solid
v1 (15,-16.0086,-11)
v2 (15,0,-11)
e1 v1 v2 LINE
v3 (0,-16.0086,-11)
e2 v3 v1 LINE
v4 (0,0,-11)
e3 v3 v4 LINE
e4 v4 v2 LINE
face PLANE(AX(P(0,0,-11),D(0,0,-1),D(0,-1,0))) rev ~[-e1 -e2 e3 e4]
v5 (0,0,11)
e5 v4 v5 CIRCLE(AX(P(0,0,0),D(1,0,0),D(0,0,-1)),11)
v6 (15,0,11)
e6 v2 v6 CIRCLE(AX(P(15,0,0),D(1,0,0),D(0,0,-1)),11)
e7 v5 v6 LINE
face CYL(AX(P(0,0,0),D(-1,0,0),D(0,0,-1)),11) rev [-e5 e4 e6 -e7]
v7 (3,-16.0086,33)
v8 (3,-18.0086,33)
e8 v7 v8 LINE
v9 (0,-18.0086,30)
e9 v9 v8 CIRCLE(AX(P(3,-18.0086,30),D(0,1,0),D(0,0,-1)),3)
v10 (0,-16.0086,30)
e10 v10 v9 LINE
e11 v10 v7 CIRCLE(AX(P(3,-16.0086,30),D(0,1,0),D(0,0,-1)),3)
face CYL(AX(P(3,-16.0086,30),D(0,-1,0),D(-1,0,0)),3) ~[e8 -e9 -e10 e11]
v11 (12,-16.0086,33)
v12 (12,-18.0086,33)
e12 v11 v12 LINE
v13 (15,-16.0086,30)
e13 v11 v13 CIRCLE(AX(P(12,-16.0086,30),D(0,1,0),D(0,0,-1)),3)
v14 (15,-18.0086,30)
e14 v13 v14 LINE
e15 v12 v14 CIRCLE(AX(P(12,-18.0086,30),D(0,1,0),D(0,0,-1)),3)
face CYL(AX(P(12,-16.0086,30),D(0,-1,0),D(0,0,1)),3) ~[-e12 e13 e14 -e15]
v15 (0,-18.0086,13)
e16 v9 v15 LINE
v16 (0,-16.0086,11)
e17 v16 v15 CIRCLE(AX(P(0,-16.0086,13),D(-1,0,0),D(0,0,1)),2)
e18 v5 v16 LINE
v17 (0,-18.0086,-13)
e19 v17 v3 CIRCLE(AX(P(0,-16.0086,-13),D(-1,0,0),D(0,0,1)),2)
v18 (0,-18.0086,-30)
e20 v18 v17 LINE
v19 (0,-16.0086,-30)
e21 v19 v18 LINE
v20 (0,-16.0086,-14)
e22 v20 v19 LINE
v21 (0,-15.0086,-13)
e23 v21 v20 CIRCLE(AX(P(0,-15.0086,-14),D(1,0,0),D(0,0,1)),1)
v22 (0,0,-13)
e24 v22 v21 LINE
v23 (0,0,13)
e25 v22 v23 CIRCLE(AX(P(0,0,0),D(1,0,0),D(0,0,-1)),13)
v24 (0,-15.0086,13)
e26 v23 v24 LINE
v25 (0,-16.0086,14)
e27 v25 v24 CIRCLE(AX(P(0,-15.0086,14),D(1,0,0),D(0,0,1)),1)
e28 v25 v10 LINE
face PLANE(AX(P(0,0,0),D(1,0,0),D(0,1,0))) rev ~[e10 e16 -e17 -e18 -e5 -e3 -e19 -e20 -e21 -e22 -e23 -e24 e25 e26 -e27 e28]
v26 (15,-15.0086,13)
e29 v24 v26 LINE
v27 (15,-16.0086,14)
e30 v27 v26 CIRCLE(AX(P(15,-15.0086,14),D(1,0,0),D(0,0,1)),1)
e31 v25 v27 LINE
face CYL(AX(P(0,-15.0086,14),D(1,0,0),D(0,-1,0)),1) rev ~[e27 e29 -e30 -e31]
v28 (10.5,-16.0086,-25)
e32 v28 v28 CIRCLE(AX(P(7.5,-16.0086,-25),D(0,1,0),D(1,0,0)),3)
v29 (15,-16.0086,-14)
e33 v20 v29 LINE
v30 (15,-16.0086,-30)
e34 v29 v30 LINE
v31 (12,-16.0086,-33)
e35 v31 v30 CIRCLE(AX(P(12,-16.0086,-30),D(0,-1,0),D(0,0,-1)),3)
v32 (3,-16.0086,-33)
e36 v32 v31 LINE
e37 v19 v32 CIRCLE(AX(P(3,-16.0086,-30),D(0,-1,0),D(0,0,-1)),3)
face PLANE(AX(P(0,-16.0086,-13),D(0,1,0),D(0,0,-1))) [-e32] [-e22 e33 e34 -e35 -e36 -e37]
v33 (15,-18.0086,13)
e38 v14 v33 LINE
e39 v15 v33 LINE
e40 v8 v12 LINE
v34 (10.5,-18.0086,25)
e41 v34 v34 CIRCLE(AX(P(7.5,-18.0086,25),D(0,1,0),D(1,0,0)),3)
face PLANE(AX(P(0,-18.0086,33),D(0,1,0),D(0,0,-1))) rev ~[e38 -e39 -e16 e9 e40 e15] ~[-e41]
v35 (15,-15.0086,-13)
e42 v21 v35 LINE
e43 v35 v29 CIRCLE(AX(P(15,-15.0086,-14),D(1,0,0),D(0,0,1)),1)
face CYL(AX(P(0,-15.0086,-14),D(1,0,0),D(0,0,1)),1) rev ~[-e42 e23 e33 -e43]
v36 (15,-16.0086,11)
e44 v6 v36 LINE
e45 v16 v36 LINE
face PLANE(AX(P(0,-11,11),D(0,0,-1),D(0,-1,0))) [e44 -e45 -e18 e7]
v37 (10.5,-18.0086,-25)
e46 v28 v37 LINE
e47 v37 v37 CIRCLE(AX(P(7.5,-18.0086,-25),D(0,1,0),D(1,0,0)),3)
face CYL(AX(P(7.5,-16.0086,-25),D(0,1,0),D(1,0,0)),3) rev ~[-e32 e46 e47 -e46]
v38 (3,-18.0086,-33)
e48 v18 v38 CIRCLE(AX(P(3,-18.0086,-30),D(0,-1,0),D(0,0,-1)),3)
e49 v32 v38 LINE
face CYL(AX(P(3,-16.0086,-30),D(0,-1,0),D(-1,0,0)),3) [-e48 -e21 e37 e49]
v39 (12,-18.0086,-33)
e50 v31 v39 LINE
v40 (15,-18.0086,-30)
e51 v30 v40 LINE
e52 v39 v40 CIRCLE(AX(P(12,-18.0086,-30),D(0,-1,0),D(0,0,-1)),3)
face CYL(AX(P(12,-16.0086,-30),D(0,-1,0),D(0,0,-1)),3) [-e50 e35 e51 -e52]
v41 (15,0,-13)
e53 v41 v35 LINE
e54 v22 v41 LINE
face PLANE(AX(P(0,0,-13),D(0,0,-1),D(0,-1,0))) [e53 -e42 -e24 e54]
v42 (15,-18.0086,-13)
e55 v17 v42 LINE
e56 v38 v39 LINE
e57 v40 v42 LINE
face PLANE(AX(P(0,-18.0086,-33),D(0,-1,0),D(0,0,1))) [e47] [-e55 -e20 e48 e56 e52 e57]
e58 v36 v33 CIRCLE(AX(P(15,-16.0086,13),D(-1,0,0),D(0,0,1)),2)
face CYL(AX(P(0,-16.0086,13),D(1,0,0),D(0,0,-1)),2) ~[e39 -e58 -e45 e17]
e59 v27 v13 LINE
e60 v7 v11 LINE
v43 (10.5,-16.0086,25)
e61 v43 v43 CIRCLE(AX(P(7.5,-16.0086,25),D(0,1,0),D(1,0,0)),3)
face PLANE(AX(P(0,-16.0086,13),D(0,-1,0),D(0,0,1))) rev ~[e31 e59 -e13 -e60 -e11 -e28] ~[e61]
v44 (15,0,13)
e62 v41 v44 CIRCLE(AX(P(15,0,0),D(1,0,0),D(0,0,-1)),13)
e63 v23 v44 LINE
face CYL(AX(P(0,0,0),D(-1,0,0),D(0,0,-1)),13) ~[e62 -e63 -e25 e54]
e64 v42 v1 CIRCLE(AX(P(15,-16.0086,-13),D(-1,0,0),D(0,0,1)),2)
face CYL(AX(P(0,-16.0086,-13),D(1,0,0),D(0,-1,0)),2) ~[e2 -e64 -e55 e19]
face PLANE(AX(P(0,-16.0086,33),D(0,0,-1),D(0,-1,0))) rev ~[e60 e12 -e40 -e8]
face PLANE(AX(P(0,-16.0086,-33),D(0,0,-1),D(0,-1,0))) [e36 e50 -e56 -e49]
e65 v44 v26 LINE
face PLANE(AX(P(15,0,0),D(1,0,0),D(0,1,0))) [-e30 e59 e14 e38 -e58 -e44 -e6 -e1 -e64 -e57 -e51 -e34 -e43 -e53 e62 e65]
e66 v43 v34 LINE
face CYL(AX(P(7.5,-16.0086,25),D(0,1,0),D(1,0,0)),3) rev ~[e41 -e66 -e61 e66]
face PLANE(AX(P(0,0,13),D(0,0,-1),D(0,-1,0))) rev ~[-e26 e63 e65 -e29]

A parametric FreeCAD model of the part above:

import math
import FreeCAD as App
import Part
import Sketcher


def edges_at(feature, points):
    """Names of the edges that pass closest to the given points."""
    edges = feature.Shape.Edges
    near = lambda p: min(range(len(edges)), key=lambda i: edges[i].distToShape(Part.Vertex(*p))[0])
    return sorted({f"Edge{near(p) + 1}" for p in points})

doc = App.newDocument("Part")
body = doc.addObject("PartDesign::Body", "Body")

# Sketch on YZ plane
sketch1 = body.newObject("Sketcher::SketchObject", "Sketch")
sketch1.AttachmentSupport = (doc.getObject("YZ_Plane"), [""])
sketch1.MapMode = "FlatFace"
sketch1.addGeometry(Part.ArcOfCircle(Part.Circle(App.Vector(0, 0, 0), App.Vector(0, 0, 1), 11), math.radians(-90), math.radians(90)), False)
sketch1.addGeometry(Part.LineSegment(App.Vector(0, -11, 0), App.Vector(-18, -11, 0)), False)
sketch1.addGeometry(Part.LineSegment(App.Vector(-18, -11, 0), App.Vector(-18, -33, 0)), False)
sketch1.addGeometry(Part.LineSegment(App.Vector(-18, -33, 0), App.Vector(-16, -33, 0)), False)
sketch1.addGeometry(Part.LineSegment(App.Vector(-16, -33, 0), App.Vector(-16, -13, 0)), False)
sketch1.addGeometry(Part.LineSegment(App.Vector(-16, -13, 0), App.Vector(0, -13, 0)), False)
sketch1.addGeometry(Part.ArcOfCircle(Part.Circle(App.Vector(0, 0, 0), App.Vector(0, 0, 1), 13), math.radians(-90), math.radians(90)), False)
sketch1.addGeometry(Part.LineSegment(App.Vector(0, 13, 0), App.Vector(-16, 13, 0)), False)
sketch1.addGeometry(Part.LineSegment(App.Vector(-16, 13, 0), App.Vector(-16, 33, 0)), False)
sketch1.addGeometry(Part.LineSegment(App.Vector(-16, 33, 0), App.Vector(-18, 33, 0)), False)
sketch1.addGeometry(Part.LineSegment(App.Vector(-18, 33, 0), App.Vector(-18, 11, 0)), False)
sketch1.addGeometry(Part.LineSegment(App.Vector(-18, 11, 0), App.Vector(0, 11, 0)), False)
sketch1.addConstraint(Sketcher.Constraint("Tangent", 0, 1, 1, 1))
sketch1.addConstraint(Sketcher.Constraint("Coincident", 1, 2, 2, 1))
sketch1.addConstraint(Sketcher.Constraint("Coincident", 2, 2, 3, 1))
sketch1.addConstraint(Sketcher.Constraint("Coincident", 3, 2, 4, 1))
sketch1.addConstraint(Sketcher.Constraint("Coincident", 4, 2, 5, 1))
sketch1.addConstraint(Sketcher.Constraint("Tangent", 5, 2, 6, 1))
sketch1.addConstraint(Sketcher.Constraint("Tangent", 6, 2, 7, 1))
sketch1.addConstraint(Sketcher.Constraint("Coincident", 7, 2, 8, 1))
sketch1.addConstraint(Sketcher.Constraint("Coincident", 8, 2, 9, 1))
sketch1.addConstraint(Sketcher.Constraint("Coincident", 9, 2, 10, 1))
sketch1.addConstraint(Sketcher.Constraint("Coincident", 10, 2, 11, 1))
sketch1.addConstraint(Sketcher.Constraint("Tangent", 11, 2, 0, 2))
sketch1.addConstraint(Sketcher.Constraint("Horizontal", 1))
sketch1.addConstraint(Sketcher.Constraint("Vertical", 2))
sketch1.addConstraint(Sketcher.Constraint("Horizontal", 3))
sketch1.addConstraint(Sketcher.Constraint("Vertical", 4))
sketch1.addConstraint(Sketcher.Constraint("Horizontal", 5))
sketch1.addConstraint(Sketcher.Constraint("Horizontal", 7))
sketch1.addConstraint(Sketcher.Constraint("Vertical", 8))
sketch1.addConstraint(Sketcher.Constraint("Horizontal", 9))
sketch1.addConstraint(Sketcher.Constraint("Vertical", 10))
sketch1.addConstraint(Sketcher.Constraint("Horizontal", 11))
sketch1.addConstraint(Sketcher.Constraint("Coincident", 0, 3, -1, 1))
sketch1.addConstraint(Sketcher.Constraint("Coincident", 6, 3, -1, 1))
sketch1.addConstraint(Sketcher.Constraint("Symmetric", 3, 2, 8, 2, -1))
sketch1.addConstraint(Sketcher.Constraint("Vertical", 2, 2, 9, 2))
sketch1.addConstraint(Sketcher.Constraint("Radius", 0, 11.0))
sketch1.addConstraint(Sketcher.Constraint("DistanceX", 3, 1, 3, 2, 2.0))
sketch1.addConstraint(Sketcher.Constraint("DistanceY", 2, 2, 2, 1, 22.0))
sketch1.addConstraint(Sketcher.Constraint("Radius", 6, 13.0))
sketch1.addConstraint(Sketcher.Constraint("DistanceX", 1, 2, 1, 1, 18.0086))
pad1 = body.newObject("PartDesign::Pad", "Pad")
pad1.Profile = sketch1
pad1.Length = 15
doc.recompute()

fillet = body.newObject("PartDesign::Fillet", "Fillet")
fillet.Base = (pad1, edges_at(pad1, [(7.5, -18.009, -11), (7.5, -18.009, 11)]))
fillet.Radius = 2
doc.recompute()

fillet2 = body.newObject("PartDesign::Fillet", "Fillet001")
fillet2.Base = (fillet, edges_at(fillet, [(7.5, -16.009, 13), (7.5, -16.009, -13)]))
fillet2.Radius = 1
doc.recompute()

fillet3 = body.newObject("PartDesign::Fillet", "Fillet002")
fillet3.Base = (fillet2, edges_at(fillet2, [
    (15, -17.009, 33),
    (0, -17.009, 33),
    (15, -17.009, -33),
    (0, -17.009, -33),
]))
fillet3.Radius = 3

# Sketch on XZ plane
sketch2 = body.newObject("Sketcher::SketchObject", "Sketch001")
sketch2.AttachmentSupport = (doc.getObject("XZ_Plane"), [""])
sketch2.MapMode = "FlatFace"
sketch2.AttachmentOffset = App.Placement(App.Vector(0, 0, 16.0086), App.Rotation())
sketch2.addGeometry(Part.Circle(App.Vector(7.5, 25, 0), App.Vector(0, 0, 1), 3), False)
sketch2.addGeometry(Part.Circle(App.Vector(7.5, -25, 0), App.Vector(0, 0, 1), 3), False)
sketch2.addConstraint(Sketcher.Constraint("Equal", 0, 1))
sketch2.addConstraint(Sketcher.Constraint("Symmetric", 0, 3, 1, 3, -1))
sketch2.addConstraint(Sketcher.Constraint("Diameter", 0, 6.0))
sketch2.addConstraint(Sketcher.Constraint("DistanceY", -1, 1, 0, 3, 25.0))
sketch2.addConstraint(Sketcher.Constraint("DistanceX", -1, 1, 0, 3, 7.5))
pocket1 = body.newObject("PartDesign::Pocket", "Pocket")
pocket1.Profile = sketch2
pocket1.Length = 15
pocket1.Reversed = True

doc.recompute()
